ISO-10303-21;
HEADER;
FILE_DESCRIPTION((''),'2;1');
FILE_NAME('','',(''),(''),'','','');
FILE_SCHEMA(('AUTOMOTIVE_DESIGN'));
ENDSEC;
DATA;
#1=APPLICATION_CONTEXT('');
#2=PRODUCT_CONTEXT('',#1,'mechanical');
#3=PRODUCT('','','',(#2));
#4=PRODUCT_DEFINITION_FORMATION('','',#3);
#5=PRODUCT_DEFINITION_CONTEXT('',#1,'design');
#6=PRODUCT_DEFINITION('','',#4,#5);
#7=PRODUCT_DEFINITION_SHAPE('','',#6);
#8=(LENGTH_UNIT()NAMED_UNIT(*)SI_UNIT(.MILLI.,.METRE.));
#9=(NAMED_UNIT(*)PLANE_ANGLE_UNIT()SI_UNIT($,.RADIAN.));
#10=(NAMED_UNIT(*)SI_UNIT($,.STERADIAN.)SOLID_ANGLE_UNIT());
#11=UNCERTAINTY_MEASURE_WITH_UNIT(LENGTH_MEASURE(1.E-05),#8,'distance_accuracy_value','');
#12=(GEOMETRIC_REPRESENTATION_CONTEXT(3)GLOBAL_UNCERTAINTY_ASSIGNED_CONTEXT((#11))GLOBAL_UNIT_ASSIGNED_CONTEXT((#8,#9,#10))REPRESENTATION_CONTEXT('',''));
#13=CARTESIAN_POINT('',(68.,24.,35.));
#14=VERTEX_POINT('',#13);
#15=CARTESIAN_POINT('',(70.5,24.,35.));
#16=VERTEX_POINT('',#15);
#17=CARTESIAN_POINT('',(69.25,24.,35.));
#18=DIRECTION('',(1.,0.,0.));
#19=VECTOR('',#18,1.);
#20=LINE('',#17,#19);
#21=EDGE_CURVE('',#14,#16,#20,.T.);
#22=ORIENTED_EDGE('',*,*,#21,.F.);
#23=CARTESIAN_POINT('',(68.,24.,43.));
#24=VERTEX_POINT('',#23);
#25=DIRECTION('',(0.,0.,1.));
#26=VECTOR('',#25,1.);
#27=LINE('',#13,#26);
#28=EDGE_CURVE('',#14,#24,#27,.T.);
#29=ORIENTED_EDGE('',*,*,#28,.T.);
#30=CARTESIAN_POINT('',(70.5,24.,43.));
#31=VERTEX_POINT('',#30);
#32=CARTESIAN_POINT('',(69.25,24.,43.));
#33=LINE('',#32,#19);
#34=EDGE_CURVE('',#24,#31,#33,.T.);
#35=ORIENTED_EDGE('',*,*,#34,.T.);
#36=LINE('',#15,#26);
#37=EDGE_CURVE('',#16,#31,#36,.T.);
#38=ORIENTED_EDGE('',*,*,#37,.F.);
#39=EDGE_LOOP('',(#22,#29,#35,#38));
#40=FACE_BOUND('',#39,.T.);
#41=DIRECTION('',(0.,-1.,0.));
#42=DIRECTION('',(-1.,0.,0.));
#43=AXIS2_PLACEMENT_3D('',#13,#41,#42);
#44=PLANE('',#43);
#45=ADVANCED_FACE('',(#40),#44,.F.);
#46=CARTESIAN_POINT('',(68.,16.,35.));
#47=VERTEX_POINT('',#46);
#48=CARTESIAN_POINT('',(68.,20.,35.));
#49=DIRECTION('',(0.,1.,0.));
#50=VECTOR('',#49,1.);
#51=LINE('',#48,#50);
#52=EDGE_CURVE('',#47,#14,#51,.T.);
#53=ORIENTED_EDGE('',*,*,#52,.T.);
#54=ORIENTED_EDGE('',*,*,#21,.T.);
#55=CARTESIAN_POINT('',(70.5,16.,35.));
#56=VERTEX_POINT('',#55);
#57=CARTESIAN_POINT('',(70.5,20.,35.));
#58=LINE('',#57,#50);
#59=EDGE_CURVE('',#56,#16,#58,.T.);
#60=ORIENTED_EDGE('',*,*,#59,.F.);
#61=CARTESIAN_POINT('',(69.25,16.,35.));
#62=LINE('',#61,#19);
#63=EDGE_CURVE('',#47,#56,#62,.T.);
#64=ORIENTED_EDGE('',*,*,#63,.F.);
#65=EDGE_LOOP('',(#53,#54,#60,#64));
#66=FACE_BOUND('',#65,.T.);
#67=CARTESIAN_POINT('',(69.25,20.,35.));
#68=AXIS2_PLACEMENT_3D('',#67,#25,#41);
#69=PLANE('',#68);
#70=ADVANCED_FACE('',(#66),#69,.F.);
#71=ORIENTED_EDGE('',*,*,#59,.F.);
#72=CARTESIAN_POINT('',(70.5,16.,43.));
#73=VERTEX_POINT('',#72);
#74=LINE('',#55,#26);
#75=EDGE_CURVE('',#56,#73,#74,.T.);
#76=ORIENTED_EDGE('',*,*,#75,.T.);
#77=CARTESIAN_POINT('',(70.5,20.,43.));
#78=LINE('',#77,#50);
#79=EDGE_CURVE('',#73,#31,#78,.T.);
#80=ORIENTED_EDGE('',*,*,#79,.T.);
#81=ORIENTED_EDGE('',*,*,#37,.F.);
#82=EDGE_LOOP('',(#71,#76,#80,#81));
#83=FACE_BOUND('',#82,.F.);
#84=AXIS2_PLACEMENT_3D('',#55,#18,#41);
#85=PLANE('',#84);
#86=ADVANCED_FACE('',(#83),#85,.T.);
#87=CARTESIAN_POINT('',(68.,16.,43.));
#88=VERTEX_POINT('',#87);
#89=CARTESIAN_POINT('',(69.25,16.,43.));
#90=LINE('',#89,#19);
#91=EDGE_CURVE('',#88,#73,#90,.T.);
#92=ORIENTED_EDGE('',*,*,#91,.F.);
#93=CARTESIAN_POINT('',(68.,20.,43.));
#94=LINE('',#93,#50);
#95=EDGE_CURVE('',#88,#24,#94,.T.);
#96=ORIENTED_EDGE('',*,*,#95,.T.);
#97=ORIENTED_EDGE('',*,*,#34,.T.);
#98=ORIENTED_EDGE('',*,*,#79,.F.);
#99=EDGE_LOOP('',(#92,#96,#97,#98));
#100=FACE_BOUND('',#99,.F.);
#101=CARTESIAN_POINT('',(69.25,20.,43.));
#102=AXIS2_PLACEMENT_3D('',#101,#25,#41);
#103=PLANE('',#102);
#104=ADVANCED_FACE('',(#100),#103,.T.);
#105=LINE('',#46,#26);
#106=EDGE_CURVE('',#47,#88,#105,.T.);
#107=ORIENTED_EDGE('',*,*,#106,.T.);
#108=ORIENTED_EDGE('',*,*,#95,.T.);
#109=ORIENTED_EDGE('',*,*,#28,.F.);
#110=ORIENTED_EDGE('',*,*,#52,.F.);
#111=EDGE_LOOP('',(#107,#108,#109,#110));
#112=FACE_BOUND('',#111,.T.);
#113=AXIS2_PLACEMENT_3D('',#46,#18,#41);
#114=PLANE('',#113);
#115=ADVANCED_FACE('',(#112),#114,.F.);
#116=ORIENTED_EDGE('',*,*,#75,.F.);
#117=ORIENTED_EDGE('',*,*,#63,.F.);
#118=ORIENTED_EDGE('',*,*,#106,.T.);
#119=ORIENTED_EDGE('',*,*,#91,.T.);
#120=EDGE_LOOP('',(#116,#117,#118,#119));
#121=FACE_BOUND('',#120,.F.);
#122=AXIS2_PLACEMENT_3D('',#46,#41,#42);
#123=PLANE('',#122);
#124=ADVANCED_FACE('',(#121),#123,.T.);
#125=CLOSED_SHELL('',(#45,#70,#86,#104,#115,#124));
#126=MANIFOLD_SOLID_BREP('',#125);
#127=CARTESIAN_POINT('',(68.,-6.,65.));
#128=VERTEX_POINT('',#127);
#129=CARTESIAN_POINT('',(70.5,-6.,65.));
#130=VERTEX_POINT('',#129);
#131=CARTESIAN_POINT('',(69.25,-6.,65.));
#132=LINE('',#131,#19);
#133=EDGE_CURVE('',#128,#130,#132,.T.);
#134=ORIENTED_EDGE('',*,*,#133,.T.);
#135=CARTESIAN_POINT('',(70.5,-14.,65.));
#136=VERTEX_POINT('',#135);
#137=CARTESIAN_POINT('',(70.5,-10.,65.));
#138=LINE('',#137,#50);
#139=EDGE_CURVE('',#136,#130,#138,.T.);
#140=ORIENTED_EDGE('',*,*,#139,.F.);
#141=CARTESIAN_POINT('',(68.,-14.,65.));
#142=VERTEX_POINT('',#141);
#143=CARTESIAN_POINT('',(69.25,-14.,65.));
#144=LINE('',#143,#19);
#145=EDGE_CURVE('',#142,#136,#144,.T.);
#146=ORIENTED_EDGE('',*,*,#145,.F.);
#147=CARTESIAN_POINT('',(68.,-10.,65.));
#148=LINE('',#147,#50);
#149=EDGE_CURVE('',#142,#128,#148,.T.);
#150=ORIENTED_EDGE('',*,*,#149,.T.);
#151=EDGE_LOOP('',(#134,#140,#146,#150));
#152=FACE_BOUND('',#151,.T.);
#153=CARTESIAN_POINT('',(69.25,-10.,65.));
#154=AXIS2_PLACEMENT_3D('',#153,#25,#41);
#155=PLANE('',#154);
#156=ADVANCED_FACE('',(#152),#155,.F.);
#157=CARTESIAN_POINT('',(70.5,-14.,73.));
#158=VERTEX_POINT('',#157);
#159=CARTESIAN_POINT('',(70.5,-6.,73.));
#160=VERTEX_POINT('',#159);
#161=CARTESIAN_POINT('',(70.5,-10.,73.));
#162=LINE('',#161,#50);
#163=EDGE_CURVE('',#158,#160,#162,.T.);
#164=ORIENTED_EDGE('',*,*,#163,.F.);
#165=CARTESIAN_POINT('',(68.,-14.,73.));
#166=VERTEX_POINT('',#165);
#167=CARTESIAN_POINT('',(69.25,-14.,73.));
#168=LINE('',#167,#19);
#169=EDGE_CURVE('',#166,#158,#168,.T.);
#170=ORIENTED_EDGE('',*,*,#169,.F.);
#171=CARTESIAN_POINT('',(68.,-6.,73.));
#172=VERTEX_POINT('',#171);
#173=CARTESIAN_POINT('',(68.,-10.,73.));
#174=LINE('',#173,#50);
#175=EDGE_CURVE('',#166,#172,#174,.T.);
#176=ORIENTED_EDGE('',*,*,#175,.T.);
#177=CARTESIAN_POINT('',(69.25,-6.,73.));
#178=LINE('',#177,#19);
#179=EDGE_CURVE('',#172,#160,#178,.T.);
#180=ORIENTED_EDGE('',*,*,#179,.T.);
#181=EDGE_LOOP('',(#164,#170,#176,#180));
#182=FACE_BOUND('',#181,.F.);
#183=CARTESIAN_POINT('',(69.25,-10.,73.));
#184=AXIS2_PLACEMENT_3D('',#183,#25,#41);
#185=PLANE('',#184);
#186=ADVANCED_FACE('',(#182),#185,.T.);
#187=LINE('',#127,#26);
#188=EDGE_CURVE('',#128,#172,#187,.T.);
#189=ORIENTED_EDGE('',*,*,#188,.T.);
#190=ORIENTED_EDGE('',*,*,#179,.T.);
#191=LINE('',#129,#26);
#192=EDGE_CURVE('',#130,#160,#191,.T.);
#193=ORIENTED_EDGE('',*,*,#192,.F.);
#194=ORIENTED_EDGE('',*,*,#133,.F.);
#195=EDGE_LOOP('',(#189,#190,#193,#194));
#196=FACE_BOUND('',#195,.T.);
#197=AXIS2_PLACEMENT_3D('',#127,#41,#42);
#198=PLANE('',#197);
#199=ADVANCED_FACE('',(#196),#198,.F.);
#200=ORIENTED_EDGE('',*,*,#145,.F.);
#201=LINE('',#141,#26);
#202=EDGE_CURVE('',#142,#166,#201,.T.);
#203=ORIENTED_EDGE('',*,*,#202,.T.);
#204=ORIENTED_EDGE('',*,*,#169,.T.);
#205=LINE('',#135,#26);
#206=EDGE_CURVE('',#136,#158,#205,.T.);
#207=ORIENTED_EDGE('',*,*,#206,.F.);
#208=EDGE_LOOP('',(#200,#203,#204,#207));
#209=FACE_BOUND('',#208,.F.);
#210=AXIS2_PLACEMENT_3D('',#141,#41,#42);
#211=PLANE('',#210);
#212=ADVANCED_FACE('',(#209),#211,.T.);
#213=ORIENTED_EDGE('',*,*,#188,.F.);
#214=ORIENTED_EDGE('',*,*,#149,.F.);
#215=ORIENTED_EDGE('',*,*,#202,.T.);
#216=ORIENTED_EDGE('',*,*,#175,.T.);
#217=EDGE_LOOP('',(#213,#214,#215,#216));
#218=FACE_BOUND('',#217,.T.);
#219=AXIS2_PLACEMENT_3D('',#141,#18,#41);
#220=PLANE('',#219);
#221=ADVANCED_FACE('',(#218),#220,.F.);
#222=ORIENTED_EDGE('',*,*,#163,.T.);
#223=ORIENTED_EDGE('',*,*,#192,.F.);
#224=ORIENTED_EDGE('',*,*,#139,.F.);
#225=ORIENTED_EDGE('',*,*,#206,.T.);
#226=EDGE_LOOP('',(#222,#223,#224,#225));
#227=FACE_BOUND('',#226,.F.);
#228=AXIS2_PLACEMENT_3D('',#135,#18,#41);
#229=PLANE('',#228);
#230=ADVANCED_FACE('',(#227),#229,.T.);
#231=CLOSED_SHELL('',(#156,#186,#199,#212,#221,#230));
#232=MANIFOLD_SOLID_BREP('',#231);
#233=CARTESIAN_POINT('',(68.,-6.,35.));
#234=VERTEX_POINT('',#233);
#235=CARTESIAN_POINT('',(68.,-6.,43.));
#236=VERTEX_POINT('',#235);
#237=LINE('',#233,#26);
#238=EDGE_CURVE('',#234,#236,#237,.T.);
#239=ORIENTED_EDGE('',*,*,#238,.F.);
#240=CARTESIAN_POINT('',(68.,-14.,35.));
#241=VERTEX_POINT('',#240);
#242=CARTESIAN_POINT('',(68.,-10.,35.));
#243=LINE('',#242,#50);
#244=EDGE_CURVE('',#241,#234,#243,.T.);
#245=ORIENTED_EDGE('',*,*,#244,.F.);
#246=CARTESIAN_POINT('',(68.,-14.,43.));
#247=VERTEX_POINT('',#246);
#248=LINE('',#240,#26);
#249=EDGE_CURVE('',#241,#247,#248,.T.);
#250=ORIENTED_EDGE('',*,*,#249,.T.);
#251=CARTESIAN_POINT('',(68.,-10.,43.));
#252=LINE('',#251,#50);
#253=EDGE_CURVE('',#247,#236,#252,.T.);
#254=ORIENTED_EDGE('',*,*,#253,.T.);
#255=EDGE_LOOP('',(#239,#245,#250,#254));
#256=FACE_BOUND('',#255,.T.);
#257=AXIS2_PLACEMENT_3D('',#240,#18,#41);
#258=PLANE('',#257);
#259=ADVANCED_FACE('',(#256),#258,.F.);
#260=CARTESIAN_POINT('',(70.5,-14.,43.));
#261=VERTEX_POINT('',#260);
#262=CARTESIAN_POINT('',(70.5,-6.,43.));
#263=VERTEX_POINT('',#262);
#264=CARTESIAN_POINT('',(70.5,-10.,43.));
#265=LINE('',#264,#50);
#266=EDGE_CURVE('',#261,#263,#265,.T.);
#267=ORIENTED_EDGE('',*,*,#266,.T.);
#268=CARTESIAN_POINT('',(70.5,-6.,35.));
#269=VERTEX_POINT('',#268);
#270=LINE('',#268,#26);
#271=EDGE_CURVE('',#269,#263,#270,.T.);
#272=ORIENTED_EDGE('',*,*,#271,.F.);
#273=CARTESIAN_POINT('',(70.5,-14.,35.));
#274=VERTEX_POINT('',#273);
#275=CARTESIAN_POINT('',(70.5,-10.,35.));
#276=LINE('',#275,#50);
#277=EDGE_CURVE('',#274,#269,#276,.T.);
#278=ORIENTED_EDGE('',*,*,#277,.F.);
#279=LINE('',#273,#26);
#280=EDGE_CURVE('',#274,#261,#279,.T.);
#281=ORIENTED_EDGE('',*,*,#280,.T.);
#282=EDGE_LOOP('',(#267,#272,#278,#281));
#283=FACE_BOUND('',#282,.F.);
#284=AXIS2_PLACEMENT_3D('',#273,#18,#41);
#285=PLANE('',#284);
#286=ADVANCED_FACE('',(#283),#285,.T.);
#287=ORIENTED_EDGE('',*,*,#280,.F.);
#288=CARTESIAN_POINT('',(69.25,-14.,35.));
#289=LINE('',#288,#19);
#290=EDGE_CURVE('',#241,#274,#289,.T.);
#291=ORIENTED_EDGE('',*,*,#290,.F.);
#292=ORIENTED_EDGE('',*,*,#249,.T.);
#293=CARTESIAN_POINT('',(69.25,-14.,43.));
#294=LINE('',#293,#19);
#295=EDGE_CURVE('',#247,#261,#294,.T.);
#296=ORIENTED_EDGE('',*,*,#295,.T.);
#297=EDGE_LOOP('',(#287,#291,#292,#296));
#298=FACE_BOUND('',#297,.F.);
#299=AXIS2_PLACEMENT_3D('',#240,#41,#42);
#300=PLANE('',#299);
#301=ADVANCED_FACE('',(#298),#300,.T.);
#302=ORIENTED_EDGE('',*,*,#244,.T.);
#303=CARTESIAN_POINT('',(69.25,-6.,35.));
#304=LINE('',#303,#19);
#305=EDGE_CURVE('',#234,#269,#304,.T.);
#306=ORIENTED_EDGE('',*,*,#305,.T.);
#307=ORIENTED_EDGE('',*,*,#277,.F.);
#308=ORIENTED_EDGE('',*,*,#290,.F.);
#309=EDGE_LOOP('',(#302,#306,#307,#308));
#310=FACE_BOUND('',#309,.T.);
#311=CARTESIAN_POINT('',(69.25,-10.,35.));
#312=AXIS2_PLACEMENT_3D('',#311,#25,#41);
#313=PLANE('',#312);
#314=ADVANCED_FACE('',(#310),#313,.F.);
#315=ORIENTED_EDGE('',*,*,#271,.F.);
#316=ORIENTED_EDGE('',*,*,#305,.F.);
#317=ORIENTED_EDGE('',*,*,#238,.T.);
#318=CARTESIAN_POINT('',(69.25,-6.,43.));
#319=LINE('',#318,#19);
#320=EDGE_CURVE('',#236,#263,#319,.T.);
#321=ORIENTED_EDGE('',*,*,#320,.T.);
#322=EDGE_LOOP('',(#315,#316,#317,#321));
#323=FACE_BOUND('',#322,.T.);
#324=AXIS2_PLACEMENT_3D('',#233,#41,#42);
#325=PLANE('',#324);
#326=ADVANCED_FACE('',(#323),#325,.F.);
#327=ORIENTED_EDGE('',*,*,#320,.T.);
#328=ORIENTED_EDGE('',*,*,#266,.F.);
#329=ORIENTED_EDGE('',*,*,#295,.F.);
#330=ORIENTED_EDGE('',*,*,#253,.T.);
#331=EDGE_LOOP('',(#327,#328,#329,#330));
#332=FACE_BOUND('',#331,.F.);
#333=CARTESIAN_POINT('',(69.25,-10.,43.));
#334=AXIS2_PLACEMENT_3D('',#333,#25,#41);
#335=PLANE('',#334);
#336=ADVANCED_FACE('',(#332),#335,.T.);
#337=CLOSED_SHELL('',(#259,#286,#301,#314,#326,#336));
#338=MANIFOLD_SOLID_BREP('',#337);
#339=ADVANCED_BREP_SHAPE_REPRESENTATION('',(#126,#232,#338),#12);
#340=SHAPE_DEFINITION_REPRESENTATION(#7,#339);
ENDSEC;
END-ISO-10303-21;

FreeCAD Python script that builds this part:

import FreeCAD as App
import Part
import Sketcher

V = App.Vector


def add_polygon(sketch, points):
    """Adds a closed chain of lines whose ends are joined by coincident constraints."""
    first, n = sketch.GeometryCount, len(points)
    for a, b in zip(points, points[1:] + points[:1]):
        sketch.addGeometry(Part.LineSegment(App.Vector(*a, 0), App.Vector(*b, 0)), False)
    for i in range(n):
        sketch.addConstraint(Sketcher.Constraint("Coincident", first + i, 2, first + (i + 1) % n, 1))

doc = App.newDocument("Part")
params = doc.addObject("Spreadsheet::Sheet", "Params")
for row, (alias, value) in enumerate([
    ("sketch1_height", "8 mm"),
    ("sketch1_width", "2.5 mm"),
    ("pad1_length", "8 mm"),
    ("sketch2_height", "8 mm"),
    ("sketch2_width", "2.5 mm"),
    ("pad2_length", "8 mm"),
    ("sketch3_height", "8 mm"),
    ("sketch3_width", "2.5 mm"),
    ("pad3_length", "8 mm"),
], start=1):
    params.set(f"A{row}", alias)
    params.set(f"B{row}", "=" + value)
    params.setAlias(f"B{row}", alias)

body = doc.addObject("PartDesign::Body", "Body")

sketch1 = body.newObject("Sketcher::SketchObject", "Sketch")
sketch1.AttachmentSupport = (doc.getObject("XY_Plane"), [""])
sketch1.MapMode = "FlatFace"
sketch1.AttachmentOffset = App.Placement(V(0, 0, 35), App.Rotation())
add_polygon(sketch1, [(-70.5, 16), (-68, 16), (-68, 24), (-70.5, 24)])
sketch1.addConstraint([
    Sketcher.Constraint("Horizontal", 0),
    Sketcher.Constraint("Vertical", 1),
    Sketcher.Constraint("Horizontal", 2),
    Sketcher.Constraint("Vertical", 3),
    Sketcher.Constraint("DistanceY", 1, 1, 1, 2, 8.0),
    Sketcher.Constraint("DistanceX", 0, 1, 0, 2, 2.5),
    Sketcher.Constraint("DistanceX", 0, 2, -1, 1, 68.0),
    Sketcher.Constraint("DistanceY", -1, 1, 0, 2, 16.0),
])
sketch1.setExpression("Constraints[8]", "Params.sketch1_height")
sketch1.setExpression("Constraints[9]", "Params.sketch1_width")
pad1 = body.newObject("PartDesign::Pad", "Pad")
pad1.Profile = sketch1
pad1.setExpression("Length", "Params.pad1_length")
body2 = doc.addObject("PartDesign::Body", "Body001")

sketch2 = body2.newObject("Sketcher::SketchObject", "Sketch001")
sketch2.AttachmentSupport = (doc.getObject("XY_Plane001"), [""])
sketch2.MapMode = "FlatFace"
sketch2.AttachmentOffset = App.Placement(V(0, 0, 65), App.Rotation())
add_polygon(sketch2, [(-70.5, -14), (-68, -14), (-68, -6), (-70.5, -6)])
sketch2.addConstraint([
    Sketcher.Constraint("Horizontal", 0),
    Sketcher.Constraint("Vertical", 1),
    Sketcher.Constraint("Horizontal", 2),
    Sketcher.Constraint("Vertical", 3),
    Sketcher.Constraint("DistanceY", 1, 1, 1, 2, 8.0),
    Sketcher.Constraint("DistanceX", 0, 1, 0, 2, 2.5),
    Sketcher.Constraint("DistanceX", 0, 2, -1, 1, 68.0),
    Sketcher.Constraint("DistanceY", 0, 2, -1, 1, 14.0),
])
sketch2.setExpression("Constraints[8]", "Params.sketch2_height")
sketch2.setExpression("Constraints[9]", "Params.sketch2_width")
pad2 = body2.newObject("PartDesign::Pad", "Pad001")
pad2.Profile = sketch2
pad2.setExpression("Length", "Params.pad2_length")
body3 = doc.addObject("PartDesign::Body", "Body002")
body3.AllowCompound = True

sketch3 = body3.newObject("Sketcher::SketchObject", "Sketch002")
sketch3.AttachmentSupport = (doc.getObject("XY_Plane002"), [""])
sketch3.MapMode = "FlatFace"
sketch3.AttachmentOffset = App.Placement(V(0, 0, 35), App.Rotation())
add_polygon(sketch3, [(-70.5, -14), (-68, -14), (-68, -6), (-70.5, -6)])
sketch3.addConstraint([
    Sketcher.Constraint("Horizontal", 0),
    Sketcher.Constraint("Vertical", 1),
    Sketcher.Constraint("Horizontal", 2),
    Sketcher.Constraint("Vertical", 3),
    Sketcher.Constraint("DistanceY", 1, 1, 1, 2, 8.0),
    Sketcher.Constraint("DistanceX", 0, 1, 0, 2, 2.5),
    Sketcher.Constraint("DistanceX", 0, 2, -1, 1, 68.0),
    Sketcher.Constraint("DistanceY", 0, 2, -1, 1, 14.0),
])
sketch3.setExpression("Constraints[8]", "Params.sketch3_height")
sketch3.setExpression("Constraints[9]", "Params.sketch3_width")
pad3 = body3.newObject("PartDesign::Pad", "Pad002")
pad3.Profile = sketch3
pad3.setExpression("Length", "Params.pad3_length")
doc.recompute()

boolean = body3.newObject("PartDesign::Boolean", "Boolean")
boolean.Type = "Fuse"
boolean.addObjects([body])
doc.recompute()

boolean2 = body3.newObject("PartDesign::Boolean", "Boolean001")
boolean2.Type = "Fuse"
boolean2.addObjects([body2])
body4 = doc.addObject("PartDesign::Body", "Body003")
body4.AllowCompound = True
doc.recompute()

mirroring = doc.addObject("Part::Mirroring", "Mirroring")
mirroring.Source = body3
mirroring.Base = V(0, 0, 0)
mirroring.Normal = V(1, 0, 0)
body4.BaseFeature = mirroring
doc.recompute()
body3.Visibility = False
mirroring.Visibility = False

doc.recompute()
